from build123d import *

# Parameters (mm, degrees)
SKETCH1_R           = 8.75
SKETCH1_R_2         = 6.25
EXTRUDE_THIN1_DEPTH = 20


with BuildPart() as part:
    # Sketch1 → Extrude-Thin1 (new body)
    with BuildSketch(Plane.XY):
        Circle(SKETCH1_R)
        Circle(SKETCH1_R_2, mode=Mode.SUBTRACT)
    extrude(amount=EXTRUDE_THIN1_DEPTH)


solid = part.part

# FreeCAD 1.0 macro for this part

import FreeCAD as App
import Part
import Sketcher

V = App.Vector

doc = App.newDocument("Part")
body = doc.addObject("PartDesign::Body", "Body")

# Sketch on XY plane
sketch1 = doc.addObject("Sketcher::SketchObject", "Sketch")
body.addObject(sketch1)
sketch1.AttachmentSupport = (doc.XY_Plane, [""])
sketch1.MapMode = "FlatFace"
sketch1.addGeometry([
    Part.Circle(V(0, 0, 0), V(0, 0, 1), 9),
    Part.Circle(V(0, 0, 0), V(0, 0, 1), 6),
], False)
sketch1.addConstraint([
    Sketcher.Constraint("Coincident", 0, 3, -1, 1),
    Sketcher.Constraint("Coincident", 1, 3, -1, 1),
    Sketcher.Constraint("Diameter", 0, 17.5),
    Sketcher.Constraint("Diameter", 1, 12.5),
])
pad1 = doc.addObject("PartDesign::Pad", "Pad")
body.addObject(pad1)
pad1.Profile = sketch1
pad1.Length = 20

doc.recompute()
